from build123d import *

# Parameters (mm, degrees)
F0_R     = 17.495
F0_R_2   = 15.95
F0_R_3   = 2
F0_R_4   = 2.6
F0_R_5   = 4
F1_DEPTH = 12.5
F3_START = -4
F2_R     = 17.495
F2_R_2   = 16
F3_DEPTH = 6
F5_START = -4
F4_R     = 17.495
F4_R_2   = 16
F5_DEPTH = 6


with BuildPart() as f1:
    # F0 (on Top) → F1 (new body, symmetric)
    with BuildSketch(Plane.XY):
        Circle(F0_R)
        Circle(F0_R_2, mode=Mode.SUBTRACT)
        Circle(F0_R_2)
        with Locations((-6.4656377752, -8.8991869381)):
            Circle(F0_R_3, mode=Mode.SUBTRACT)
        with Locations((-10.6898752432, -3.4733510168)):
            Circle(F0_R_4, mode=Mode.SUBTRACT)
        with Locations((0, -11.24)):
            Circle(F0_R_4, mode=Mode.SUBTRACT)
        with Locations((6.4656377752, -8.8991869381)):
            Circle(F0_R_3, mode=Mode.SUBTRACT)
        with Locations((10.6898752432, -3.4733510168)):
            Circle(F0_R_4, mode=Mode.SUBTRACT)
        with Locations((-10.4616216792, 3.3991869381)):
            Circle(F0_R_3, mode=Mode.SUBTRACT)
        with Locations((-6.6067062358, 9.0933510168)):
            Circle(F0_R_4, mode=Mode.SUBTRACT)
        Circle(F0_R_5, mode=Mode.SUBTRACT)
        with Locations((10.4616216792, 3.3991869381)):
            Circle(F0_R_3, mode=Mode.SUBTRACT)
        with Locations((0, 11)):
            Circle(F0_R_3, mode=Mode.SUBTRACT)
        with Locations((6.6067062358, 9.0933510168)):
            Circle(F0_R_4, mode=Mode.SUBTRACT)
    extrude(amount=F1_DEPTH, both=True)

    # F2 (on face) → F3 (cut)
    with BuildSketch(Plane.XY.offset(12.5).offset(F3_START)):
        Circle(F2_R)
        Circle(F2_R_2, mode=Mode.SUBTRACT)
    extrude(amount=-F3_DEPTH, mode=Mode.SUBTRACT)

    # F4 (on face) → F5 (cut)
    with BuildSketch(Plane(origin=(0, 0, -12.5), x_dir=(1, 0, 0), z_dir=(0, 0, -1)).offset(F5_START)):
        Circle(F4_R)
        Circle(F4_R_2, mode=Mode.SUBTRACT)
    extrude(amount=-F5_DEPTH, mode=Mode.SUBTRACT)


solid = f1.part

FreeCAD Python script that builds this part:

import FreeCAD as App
import Part
import Sketcher
from FreeCAD import Vector
Q = App.Units.Quantity

doc = App.newDocument("Part")
body = doc.addObject("PartDesign::Body", "Body")

# Sketch on XY plane
sketch1 = doc.addObject("Sketcher::SketchObject", "Sketch")
body.addObject(sketch1)
sketch1.AttachmentSupport = (doc.XY_Plane, [""])
sketch1.MapMode = "FlatFace"
sketch1.addGeometry(Part.Circle(Vector(0, 0, 0), Vector(0, 0, 1), 17.495), False)
sketch1.addGeometry(Part.Circle(Vector(0, -11.24, 0), Vector(0, 0, 1), 2.6), False)
sketch1.addGeometry(Part.Circle(Vector(-6.465638, -8.899187, 0), Vector(0, 0, 1), 2), False)
sketch1.addGeometry(Part.Circle(Vector(-10.689875, -3.473351, 0), Vector(0, 0, 1), 2.6), False)
sketch1.addGeometry(Part.Circle(Vector(6.465638, -8.899187, 0), Vector(0, 0, 1), 2), False)
sketch1.addGeometry(Part.Circle(Vector(10.689875, -3.473351, 0), Vector(0, 0, 1), 2.6), False)
sketch1.addGeometry(Part.Circle(Vector(-10.461622, 3.399187, 0), Vector(0, 0, 1), 2), False)
sketch1.addGeometry(Part.Circle(Vector(0, 0, 0), Vector(0, 0, 1), 4), False)
sketch1.addGeometry(Part.Circle(Vector(-6.606706, 9.093351, 0), Vector(0, 0, 1), 2.6), False)
sketch1.addGeometry(Part.Circle(Vector(0, 11, 0), Vector(0, 0, 1), 2), False)
sketch1.addGeometry(Part.Circle(Vector(10.461622, 3.399187, 0), Vector(0, 0, 1), 2), False)
sketch1.addGeometry(Part.Circle(Vector(6.606706, 9.093351, 0), Vector(0, 0, 1), 2.6), False)
sketch1.addConstraint(Sketcher.Constraint("Coincident", 0, 3, -1, 1))
sketch1.addConstraint(Sketcher.Constraint("Coincident", 7, 3, -1, 1))
sketch1.addConstraint(Sketcher.Constraint("Equal", 1, 3))
sketch1.addConstraint(Sketcher.Constraint("Equal", 2, 4))
sketch1.addConstraint(Sketcher.Constraint("Equal", 3, 5))
sketch1.addConstraint(Sketcher.Constraint("Equal", 4, 6))
sketch1.addConstraint(Sketcher.Constraint("Equal", 5, 8))
sketch1.addConstraint(Sketcher.Constraint("Equal", 6, 9))
sketch1.addConstraint(Sketcher.Constraint("Equal", 9, 10))
sketch1.addConstraint(Sketcher.Constraint("Equal", 8, 11))
sketch1.addConstraint(Sketcher.Constraint("Symmetric", 2, 3, 4, 3, -2))
sketch1.addConstraint(Sketcher.Constraint("Symmetric", 3, 3, 5, 3, -2))
sketch1.addConstraint(Sketcher.Constraint("Symmetric", 6, 3, 10, 3, -2))
sketch1.addConstraint(Sketcher.Constraint("Symmetric", 8, 3, 11, 3, -2))
sketch1.addConstraint(Sketcher.Constraint("PointOnObject", 1, 3, -2))
sketch1.addConstraint(Sketcher.Constraint("PointOnObject", 9, 3, -2))
sketch1.addConstraint(Sketcher.Constraint("Diameter", 2, Q("4 mm")))
sketch1.addConstraint(Sketcher.Constraint("Diameter", 7, Q("8 mm")))
sketch1.addConstraint(Sketcher.Constraint("Diameter", 1, Q("5.2 mm")))
sketch1.addConstraint(Sketcher.Constraint("Diameter", 0, Q("34.99 mm")))
sketch1.addConstraint(Sketcher.Constraint("DistanceY", -1, 1, 9, 3, Q("11 mm")))
sketch1.addConstraint(Sketcher.Constraint("DistanceY", 1, 3, -1, 1, Q("11.24 mm")))
sketch1.addConstraint(Sketcher.Constraint("DistanceY", 3, 3, -1, 1, Q("3.473351 mm")))
sketch1.addConstraint(Sketcher.Constraint("DistanceX", 6, 3, -1, 1, Q("10.461622 mm")))
sketch1.addConstraint(Sketcher.Constraint("DistanceY", -1, 1, 8, 3, Q("9.093351 mm")))
sketch1.addConstraint(Sketcher.Constraint("DistanceX", 3, 3, 5, 3, Q("21.37975 mm")))
sketch1.addConstraint(Sketcher.Constraint("DistanceX", 6, 3, 4, 3, Q("16.927259 mm")))
sketch1.addConstraint(Sketcher.Constraint("DistanceX", 3, 3, 8, 3, Q("4.083169 mm")))
sketch1.addConstraint(Sketcher.Constraint("DistanceY", 2, 3, -1, 1, Q("8.899187 mm")))
sketch1.addConstraint(Sketcher.Constraint("DistanceY", -1, 1, 6, 3, Q("3.399187 mm")))
pad1 = doc.addObject("PartDesign::Pad", "Pad")
body.addObject(pad1)
pad1.Profile = sketch1
pad1.Length = 25
pad1.Midplane = True

# Sketch on XY plane
sketch2 = doc.addObject("Sketcher::SketchObject", "Sketch001")
body.addObject(sketch2)
sketch2.AttachmentSupport = (doc.XY_Plane, [""])
sketch2.MapMode = "FlatFace"
sketch2.AttachmentOffset = App.Placement(Vector(0, 0, 8.5), App.Rotation())
sketch2.addGeometry(Part.Circle(Vector(0, 0, 0), Vector(0, 0, 1), 17.495), False)
sketch2.addGeometry(Part.Circle(Vector(0, 0, 0), Vector(0, 0, 1), 16), False)
sketch2.addConstraint(Sketcher.Constraint("Coincident", 0, 3, -1, 1))
sketch2.addConstraint(Sketcher.Constraint("Coincident", 1, 3, -1, 1))
sketch2.addConstraint(Sketcher.Constraint("Diameter", 1, Q("32 mm")))
sketch2.addConstraint(Sketcher.Constraint("Diameter", 0, Q("34.99 mm")))
pocket1 = doc.addObject("PartDesign::Pocket", "Pocket")
body.addObject(pocket1)
pocket1.Profile = sketch2
pocket1.Length = 6

# Sketch on XY plane
sketch3 = doc.addObject("Sketcher::SketchObject", "Sketch002")
body.addObject(sketch3)
sketch3.AttachmentSupport = (doc.XY_Plane, [""])
sketch3.MapMode = "FlatFace"
sketch3.AttachmentOffset = App.Placement(Vector(0, 0, -8.5), App.Rotation())
sketch3.addGeometry(Part.Circle(Vector(0, 0, 0), Vector(0, 0, 1), 17.495), False)
sketch3.addGeometry(Part.Circle(Vector(0, 0, 0), Vector(0, 0, 1), 16), False)
sketch3.addConstraint(Sketcher.Constraint("Coincident", 0, 3, -1, 1))
sketch3.addConstraint(Sketcher.Constraint("Coincident", 1, 3, -1, 1))
sketch3.addConstraint(Sketcher.Constraint("Diameter", 1, Q("32 mm")))
sketch3.addConstraint(Sketcher.Constraint("Diameter", 0, Q("34.99 mm")))
pocket2 = doc.addObject("PartDesign::Pocket", "Pocket001")
body.addObject(pocket2)
pocket2.Profile = sketch3
pocket2.Length = 6
pocket2.Reversed = True

doc.recompute()
